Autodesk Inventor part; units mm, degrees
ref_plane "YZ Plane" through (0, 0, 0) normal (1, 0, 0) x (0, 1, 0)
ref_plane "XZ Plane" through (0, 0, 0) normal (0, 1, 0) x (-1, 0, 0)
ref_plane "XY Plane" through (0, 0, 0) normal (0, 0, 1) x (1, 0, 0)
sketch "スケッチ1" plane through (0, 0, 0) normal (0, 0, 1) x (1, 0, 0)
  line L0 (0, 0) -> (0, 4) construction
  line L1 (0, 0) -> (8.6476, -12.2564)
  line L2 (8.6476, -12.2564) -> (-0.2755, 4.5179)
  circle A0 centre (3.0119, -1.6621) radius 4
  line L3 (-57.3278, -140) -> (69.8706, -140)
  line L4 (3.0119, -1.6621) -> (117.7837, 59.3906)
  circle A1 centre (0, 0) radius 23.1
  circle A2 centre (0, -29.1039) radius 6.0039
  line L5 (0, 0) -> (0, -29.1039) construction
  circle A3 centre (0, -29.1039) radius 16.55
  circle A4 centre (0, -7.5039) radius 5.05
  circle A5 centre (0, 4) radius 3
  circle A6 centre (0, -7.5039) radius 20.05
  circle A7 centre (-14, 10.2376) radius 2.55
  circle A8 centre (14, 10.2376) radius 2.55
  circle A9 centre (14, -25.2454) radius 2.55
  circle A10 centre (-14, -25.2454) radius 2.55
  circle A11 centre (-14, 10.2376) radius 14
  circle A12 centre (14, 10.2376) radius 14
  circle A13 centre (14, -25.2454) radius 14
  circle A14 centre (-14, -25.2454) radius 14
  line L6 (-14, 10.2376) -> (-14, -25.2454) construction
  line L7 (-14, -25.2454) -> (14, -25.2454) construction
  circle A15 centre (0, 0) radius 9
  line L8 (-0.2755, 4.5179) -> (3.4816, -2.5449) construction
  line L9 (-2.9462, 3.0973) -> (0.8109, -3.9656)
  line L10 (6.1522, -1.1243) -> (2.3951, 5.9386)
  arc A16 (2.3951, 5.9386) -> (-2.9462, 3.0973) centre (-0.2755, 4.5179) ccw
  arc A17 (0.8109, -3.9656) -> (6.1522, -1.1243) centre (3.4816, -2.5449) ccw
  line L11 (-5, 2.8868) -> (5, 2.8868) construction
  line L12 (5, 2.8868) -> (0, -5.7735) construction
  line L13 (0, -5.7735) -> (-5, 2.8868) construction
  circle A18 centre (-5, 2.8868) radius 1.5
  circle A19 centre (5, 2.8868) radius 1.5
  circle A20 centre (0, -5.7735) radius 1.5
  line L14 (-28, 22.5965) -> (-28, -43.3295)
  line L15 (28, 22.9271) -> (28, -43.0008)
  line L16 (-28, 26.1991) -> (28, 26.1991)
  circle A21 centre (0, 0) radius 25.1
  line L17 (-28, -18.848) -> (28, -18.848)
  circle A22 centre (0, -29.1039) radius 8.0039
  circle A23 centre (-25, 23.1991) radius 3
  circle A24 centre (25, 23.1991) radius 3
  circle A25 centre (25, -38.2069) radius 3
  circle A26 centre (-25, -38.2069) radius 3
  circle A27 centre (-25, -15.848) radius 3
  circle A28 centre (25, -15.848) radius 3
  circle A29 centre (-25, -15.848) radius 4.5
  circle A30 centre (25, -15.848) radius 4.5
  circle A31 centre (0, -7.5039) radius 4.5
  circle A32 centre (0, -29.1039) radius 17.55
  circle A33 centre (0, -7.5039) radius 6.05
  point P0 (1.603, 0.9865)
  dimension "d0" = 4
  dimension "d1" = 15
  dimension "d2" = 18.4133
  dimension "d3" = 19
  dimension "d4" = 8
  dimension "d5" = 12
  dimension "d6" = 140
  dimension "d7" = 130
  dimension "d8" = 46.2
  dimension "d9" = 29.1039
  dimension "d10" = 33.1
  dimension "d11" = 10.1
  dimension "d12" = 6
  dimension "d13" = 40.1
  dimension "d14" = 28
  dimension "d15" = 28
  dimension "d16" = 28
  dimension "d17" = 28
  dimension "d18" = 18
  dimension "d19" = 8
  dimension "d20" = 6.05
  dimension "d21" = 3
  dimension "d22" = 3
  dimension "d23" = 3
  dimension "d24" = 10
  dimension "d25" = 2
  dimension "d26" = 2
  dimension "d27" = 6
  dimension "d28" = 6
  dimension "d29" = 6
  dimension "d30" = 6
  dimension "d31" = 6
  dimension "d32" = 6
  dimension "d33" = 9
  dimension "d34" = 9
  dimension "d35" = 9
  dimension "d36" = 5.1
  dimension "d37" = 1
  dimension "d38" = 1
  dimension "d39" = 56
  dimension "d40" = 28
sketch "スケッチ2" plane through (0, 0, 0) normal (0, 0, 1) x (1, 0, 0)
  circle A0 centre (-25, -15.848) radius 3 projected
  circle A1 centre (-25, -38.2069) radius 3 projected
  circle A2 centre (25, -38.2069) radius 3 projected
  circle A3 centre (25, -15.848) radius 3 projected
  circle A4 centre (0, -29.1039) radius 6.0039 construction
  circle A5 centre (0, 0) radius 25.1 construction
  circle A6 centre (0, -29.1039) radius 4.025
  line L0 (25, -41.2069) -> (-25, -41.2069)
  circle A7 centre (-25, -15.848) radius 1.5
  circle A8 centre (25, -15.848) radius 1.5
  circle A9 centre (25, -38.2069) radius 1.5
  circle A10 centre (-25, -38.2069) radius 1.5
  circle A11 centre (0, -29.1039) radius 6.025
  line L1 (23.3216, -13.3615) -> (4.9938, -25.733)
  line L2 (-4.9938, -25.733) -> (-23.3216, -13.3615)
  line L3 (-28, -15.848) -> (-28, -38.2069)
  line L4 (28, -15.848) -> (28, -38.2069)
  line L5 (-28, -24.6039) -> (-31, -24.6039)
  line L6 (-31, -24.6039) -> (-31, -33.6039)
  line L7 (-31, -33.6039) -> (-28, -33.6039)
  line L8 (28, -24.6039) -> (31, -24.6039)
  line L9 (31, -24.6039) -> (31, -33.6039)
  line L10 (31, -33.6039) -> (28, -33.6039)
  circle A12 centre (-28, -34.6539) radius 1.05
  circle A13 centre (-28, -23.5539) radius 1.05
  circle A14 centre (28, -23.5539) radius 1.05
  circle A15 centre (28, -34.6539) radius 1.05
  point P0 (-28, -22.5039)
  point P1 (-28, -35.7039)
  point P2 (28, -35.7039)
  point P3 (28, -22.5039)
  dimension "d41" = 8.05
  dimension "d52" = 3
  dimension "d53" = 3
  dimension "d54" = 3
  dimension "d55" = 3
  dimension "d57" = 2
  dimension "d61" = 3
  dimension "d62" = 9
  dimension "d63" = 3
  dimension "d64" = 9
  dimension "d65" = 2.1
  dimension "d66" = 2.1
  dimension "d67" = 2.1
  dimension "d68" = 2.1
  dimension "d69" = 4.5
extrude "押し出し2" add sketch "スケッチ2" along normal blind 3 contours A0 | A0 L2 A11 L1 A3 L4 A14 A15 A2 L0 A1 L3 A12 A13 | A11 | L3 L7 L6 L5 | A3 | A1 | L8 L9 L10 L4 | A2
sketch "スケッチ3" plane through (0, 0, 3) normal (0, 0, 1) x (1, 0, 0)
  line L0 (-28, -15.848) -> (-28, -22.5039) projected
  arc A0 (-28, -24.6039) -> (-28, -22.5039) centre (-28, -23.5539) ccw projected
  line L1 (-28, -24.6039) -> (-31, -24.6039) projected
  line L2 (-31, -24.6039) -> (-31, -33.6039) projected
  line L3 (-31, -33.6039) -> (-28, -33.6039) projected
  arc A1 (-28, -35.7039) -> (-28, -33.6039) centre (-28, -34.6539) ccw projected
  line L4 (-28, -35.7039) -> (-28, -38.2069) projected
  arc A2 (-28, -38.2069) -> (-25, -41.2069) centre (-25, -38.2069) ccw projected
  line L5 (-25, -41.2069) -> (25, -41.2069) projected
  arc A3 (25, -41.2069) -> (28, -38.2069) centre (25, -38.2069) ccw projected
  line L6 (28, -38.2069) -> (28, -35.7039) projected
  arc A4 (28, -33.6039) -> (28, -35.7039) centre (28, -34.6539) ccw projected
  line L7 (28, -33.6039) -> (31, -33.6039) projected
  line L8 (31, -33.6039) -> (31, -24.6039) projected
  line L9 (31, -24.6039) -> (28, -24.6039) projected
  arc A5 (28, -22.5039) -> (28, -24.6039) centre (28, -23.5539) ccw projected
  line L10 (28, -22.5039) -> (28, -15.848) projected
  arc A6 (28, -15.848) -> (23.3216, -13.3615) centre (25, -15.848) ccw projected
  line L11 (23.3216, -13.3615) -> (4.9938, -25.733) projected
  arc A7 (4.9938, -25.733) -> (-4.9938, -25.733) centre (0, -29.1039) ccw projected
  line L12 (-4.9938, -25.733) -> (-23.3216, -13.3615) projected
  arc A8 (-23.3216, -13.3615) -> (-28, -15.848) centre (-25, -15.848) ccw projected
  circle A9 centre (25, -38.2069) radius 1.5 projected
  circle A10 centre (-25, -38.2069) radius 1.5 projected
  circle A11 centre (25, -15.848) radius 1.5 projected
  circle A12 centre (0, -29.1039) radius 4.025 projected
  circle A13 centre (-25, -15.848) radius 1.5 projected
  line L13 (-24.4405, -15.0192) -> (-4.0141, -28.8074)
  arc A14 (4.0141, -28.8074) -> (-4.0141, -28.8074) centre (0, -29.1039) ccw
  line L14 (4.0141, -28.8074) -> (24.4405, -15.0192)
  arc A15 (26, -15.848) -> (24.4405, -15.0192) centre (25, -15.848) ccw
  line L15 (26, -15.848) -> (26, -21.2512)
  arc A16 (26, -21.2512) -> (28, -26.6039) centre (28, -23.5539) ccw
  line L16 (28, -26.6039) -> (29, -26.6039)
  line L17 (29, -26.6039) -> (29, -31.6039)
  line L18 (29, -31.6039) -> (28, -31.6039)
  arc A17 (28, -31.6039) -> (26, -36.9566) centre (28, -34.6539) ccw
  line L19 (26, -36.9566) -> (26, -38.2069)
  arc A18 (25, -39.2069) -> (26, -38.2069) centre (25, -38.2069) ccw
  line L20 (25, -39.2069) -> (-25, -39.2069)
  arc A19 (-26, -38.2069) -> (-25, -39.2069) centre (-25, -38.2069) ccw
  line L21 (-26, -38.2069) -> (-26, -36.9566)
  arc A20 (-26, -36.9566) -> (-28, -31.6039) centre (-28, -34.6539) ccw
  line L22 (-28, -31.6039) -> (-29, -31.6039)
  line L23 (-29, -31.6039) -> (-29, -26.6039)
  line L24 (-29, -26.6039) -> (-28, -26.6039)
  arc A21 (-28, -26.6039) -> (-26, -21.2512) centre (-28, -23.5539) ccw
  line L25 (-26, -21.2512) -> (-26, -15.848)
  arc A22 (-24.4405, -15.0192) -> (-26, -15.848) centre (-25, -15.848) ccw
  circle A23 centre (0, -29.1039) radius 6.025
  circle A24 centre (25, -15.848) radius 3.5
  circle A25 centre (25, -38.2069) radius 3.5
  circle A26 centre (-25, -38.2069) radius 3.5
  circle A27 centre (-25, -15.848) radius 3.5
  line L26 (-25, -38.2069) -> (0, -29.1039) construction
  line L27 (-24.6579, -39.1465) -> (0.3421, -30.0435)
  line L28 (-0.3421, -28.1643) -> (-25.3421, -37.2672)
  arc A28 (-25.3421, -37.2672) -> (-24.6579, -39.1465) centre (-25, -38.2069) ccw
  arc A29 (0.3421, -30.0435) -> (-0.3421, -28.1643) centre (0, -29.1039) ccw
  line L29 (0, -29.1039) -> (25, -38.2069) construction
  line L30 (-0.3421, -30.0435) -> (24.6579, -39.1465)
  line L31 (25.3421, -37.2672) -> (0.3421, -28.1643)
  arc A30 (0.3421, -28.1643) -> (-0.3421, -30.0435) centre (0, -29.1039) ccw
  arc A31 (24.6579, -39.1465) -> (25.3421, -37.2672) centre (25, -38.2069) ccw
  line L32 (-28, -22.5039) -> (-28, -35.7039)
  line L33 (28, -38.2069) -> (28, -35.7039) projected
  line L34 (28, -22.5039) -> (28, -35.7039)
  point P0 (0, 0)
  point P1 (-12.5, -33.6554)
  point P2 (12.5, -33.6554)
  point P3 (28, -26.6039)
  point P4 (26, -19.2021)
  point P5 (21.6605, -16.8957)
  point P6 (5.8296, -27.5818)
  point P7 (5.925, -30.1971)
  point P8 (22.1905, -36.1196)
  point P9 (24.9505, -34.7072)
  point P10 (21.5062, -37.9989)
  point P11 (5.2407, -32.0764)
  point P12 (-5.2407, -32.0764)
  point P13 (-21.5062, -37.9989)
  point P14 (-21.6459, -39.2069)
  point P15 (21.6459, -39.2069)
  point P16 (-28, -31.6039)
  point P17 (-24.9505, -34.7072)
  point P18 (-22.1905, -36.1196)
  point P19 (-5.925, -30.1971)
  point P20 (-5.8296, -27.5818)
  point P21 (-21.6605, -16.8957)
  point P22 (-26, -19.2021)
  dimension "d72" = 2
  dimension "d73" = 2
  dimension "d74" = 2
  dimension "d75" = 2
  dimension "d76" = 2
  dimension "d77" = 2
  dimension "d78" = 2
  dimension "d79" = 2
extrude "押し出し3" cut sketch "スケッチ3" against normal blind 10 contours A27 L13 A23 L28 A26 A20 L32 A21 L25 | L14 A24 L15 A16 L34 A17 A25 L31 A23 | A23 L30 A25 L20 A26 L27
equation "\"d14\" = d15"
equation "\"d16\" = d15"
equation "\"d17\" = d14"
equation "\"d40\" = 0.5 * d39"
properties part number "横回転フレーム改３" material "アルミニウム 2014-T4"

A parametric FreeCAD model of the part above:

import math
import FreeCAD as App
import Part
import Sketcher
from FreeCAD import Vector
Q = App.Units.Quantity

doc = App.newDocument("Part")
body = doc.addObject("PartDesign::Body", "Body")

# Sketch on XY plane
sketch1 = body.newObject("Sketcher::SketchObject", "Sketch")
sketch1.AttachmentSupport = (doc.getObject("XY_Plane"), [""])
sketch1.MapMode = "FlatFace"
sketch1.addGeometry([
    Part.ArcOfCircle(Part.Circle(Vector(-25, -15.8, 0), Vector(0, 0, 1), 3), math.radians(56), math.radians(180)),  # 0
    Part.LineSegment(Vector(-28, -15.8, 0), Vector(-28, -22.5, 0)),  # 1
    Part.ArcOfCircle(Part.Circle(Vector(-28, -23.6, 0), Vector(0, 0, 1), 1.1), math.radians(-90), math.radians(90)),  # 2
    Part.LineSegment(Vector(-28, -24.6, 0), Vector(-31, -24.6, 0)),  # 3
    Part.LineSegment(Vector(-31, -24.6, 0), Vector(-31, -33.6, 0)),  # 4
    Part.LineSegment(Vector(-31, -33.6, 0), Vector(-28, -33.6, 0)),  # 5
    Part.ArcOfCircle(Part.Circle(Vector(-28, -34.7, 0), Vector(0, 0, 1), 1.1), math.radians(-90), math.radians(90)),  # 6
    Part.LineSegment(Vector(-28, -35.7, 0), Vector(-28, -38.2, 0)),  # 7
    Part.ArcOfCircle(Part.Circle(Vector(-25, -38.2, 0), Vector(0, 0, 1), 3), math.radians(180), math.radians(270)),  # 8
    Part.LineSegment(Vector(-25, -41.2, 0), Vector(25, -41.2, 0)),  # 9
    Part.ArcOfCircle(Part.Circle(Vector(25, -38.2, 0), Vector(0, 0, 1), 3), math.radians(-90), math.radians(0)),  # 10
    Part.LineSegment(Vector(28, -38.2, 0), Vector(28, -35.7, 0)),  # 11
    Part.ArcOfCircle(Part.Circle(Vector(28, -34.7, 0), Vector(0, 0, 1), 1.1), math.radians(90), math.radians(270)),  # 12
    Part.LineSegment(Vector(28, -33.6, 0), Vector(31, -33.6, 0)),  # 13
    Part.LineSegment(Vector(31, -33.6, 0), Vector(31, -24.6, 0)),  # 14
    Part.LineSegment(Vector(31, -24.6, 0), Vector(28, -24.6, 0)),  # 15
    Part.ArcOfCircle(Part.Circle(Vector(28, -23.6, 0), Vector(0, 0, 1), 1.1), math.radians(90), math.radians(270)),  # 16
    Part.LineSegment(Vector(28, -22.5, 0), Vector(28, -15.8, 0)),  # 17
    Part.ArcOfCircle(Part.Circle(Vector(25, -15.8, 0), Vector(0, 0, 1), 3), math.radians(0), math.radians(124)),  # 18
    Part.LineSegment(Vector(23.3, -13.4, 0), Vector(5, -25.7, 0)),  # 19
    Part.ArcOfCircle(Part.Circle(Vector(0, -29.1, 0), Vector(0, 0, 1), 6), math.radians(34), math.radians(146)),  # 20
    Part.LineSegment(Vector(-5, -25.7, 0), Vector(-23.3, -13.4, 0)),  # 21
    Part.Circle(Vector(-25, -15.8, 0), Vector(0, 0, 1), 1.5),  # 22
    Part.Circle(Vector(0, -29.1, 0), Vector(0, 0, 1), 4),  # 23
    Part.Circle(Vector(25, -15.8, 0), Vector(0, 0, 1), 1.5),  # 24
    Part.Circle(Vector(25, -38.2, 0), Vector(0, 0, 1), 1.5),  # 25
    Part.Circle(Vector(-25, -38.2, 0), Vector(0, 0, 1), 1.5),  # 26
], False)
sketch1.addConstraint([
    Sketcher.Constraint("Tangent", 0, 2, 1, 1),
    Sketcher.Constraint("Coincident", 1, 2, 2, 2),
    Sketcher.Constraint("Tangent", 2, 1, 3, 1),
    Sketcher.Constraint("Coincident", 3, 2, 4, 1),
    Sketcher.Constraint("Coincident", 4, 2, 5, 1),
    Sketcher.Constraint("Tangent", 5, 2, 6, 2),
    Sketcher.Constraint("Coincident", 6, 1, 7, 1),
    Sketcher.Constraint("Tangent", 7, 2, 8, 1),
    Sketcher.Constraint("Tangent", 8, 2, 9, 1),
    Sketcher.Constraint("Tangent", 9, 2, 10, 1),
    Sketcher.Constraint("Tangent", 10, 2, 11, 1),
    Sketcher.Constraint("Coincident", 11, 2, 12, 2),
    Sketcher.Constraint("Tangent", 12, 1, 13, 1),
    Sketcher.Constraint("Coincident", 13, 2, 14, 1),
    Sketcher.Constraint("Coincident", 14, 2, 15, 1),
    Sketcher.Constraint("Tangent", 15, 2, 16, 2),
    Sketcher.Constraint("Coincident", 16, 1, 17, 1),
    Sketcher.Constraint("Tangent", 17, 2, 18, 1),
    Sketcher.Constraint("Tangent", 18, 2, 19, 1),
    Sketcher.Constraint("Coincident", 19, 2, 20, 1),
    Sketcher.Constraint("Coincident", 20, 2, 21, 1),
    Sketcher.Constraint("Tangent", 21, 2, 0, 1),
    Sketcher.Constraint("Vertical", 1),
    Sketcher.Constraint("Horizontal", 3),
    Sketcher.Constraint("Vertical", 4),
    Sketcher.Constraint("Horizontal", 5),
    Sketcher.Constraint("Vertical", 7),
    Sketcher.Constraint("Horizontal", 9),
    Sketcher.Constraint("Vertical", 11),
    Sketcher.Constraint("Horizontal", 13),
    Sketcher.Constraint("Vertical", 14),
    Sketcher.Constraint("Horizontal", 15),
    Sketcher.Constraint("Vertical", 17),
    Sketcher.Constraint("Coincident", 22, 3, 0, 3),
    Sketcher.Constraint("Coincident", 23, 3, 20, 3),
    Sketcher.Constraint("Coincident", 24, 3, 18, 3),
    Sketcher.Constraint("Coincident", 25, 3, 10, 3),
    Sketcher.Constraint("Coincident", 26, 3, 8, 3),
    Sketcher.Constraint("Equal", 2, 6),
    Sketcher.Constraint("Equal", 0, 8),
    Sketcher.Constraint("Equal", 8, 10),
    Sketcher.Constraint("Equal", 6, 12),
    Sketcher.Constraint("Equal", 12, 16),
    Sketcher.Constraint("Equal", 10, 18),
    Sketcher.Constraint("Equal", 22, 24),
    Sketcher.Constraint("Equal", 24, 25),
    Sketcher.Constraint("Equal", 25, 26),
    Sketcher.Constraint("Symmetric", 6, 3, 12, 3, -2),
    Sketcher.Constraint("Symmetric", 2, 3, 16, 3, -2),
    Sketcher.Constraint("Symmetric", 0, 3, 18, 3, -2),
    Sketcher.Constraint("Symmetric", 19, 2, 20, 2, -2),
    Sketcher.Constraint("Vertical", 2, 3, 6, 3),
    Sketcher.Constraint("Vertical", 0, 3, 8, 3),
    Sketcher.Constraint("Vertical", 10, 3, 18, 3),
    Sketcher.Constraint("Vertical", 6, 3, 0, 2),
    Sketcher.Constraint("Equal", 5, 13),
    Sketcher.Constraint("Diameter", 22, 3.0),
    Sketcher.Constraint("Radius", 0, 3.0),
    Sketcher.Constraint("Diameter", 23, 8.05),
    Sketcher.Constraint("DistanceX", 3, 2, 3, 1, 3.0),
    Sketcher.Constraint("DistanceY", 4, 2, 4, 1, 9.0),
    Sketcher.Constraint("Radius", 2, 1.05),
    Sketcher.Constraint("DistanceX", 9, 1, 9, 2, 50.0),
    Sketcher.Constraint("Radius", 20, 6.025),
    Sketcher.Constraint("Angle", 19, Q("-145.9801 deg")),
    Sketcher.Constraint("DistanceY", 1, 2, 1, 1, 6.656),
    Sketcher.Constraint("DistanceY", 7, 2, 7, 1, 2.503),
    Sketcher.Constraint("DistanceY", 20, 3, 2, 3, 5.55),
    Sketcher.Constraint("DistanceY", 0, 3, -1, 1, 15.848),
])
pad1 = body.newObject("PartDesign::Pad", "Pad")
pad1.Profile = sketch1
pad1.Length = 3

# Sketch on XY plane
sketch2 = body.newObject("Sketcher::SketchObject", "Sketch001")
sketch2.AttachmentSupport = (doc.getObject("XY_Plane"), [""])
sketch2.MapMode = "FlatFace"
sketch2.AttachmentOffset = App.Placement(Vector(0, 0, 3), App.Rotation())
sketch2.addGeometry([
    Part.ArcOfCircle(Part.Circle(Vector(-25, -15.8, 0), Vector(0, 0, 1), 3.5), math.radians(-107), math.radians(-17)),  # 0
    Part.LineSegment(Vector(-26, -19.2, 0), Vector(-26, -21.3, 0)),  # 1
    Part.ArcOfCircle(Part.Circle(Vector(-28, -23.6, 0), Vector(0, 0, 1), 3.1), math.radians(-90), math.radians(49)),  # 2
    Part.LineSegment(Vector(-28, -26.6, 0), Vector(-28, -31.6, 0)),  # 3
    Part.ArcOfCircle(Part.Circle(Vector(-28, -34.7, 0), Vector(0, 0, 1), 3), math.radians(-1), math.radians(90)),  # 4
    Part.ArcOfCircle(Part.Circle(Vector(-25, -38.2, 0), Vector(0, 0, 1), 3.5), math.radians(37), math.radians(89)),  # 5
    Part.LineSegment(Vector(-22.2, -36.1, 0), Vector(-5.9, -30.2, 0)),  # 6
    Part.ArcOfCircle(Part.Circle(Vector(0, -29.1, 0), Vector(0, 0, 1), 6), math.radians(165), math.radians(190)),  # 7
    Part.LineSegment(Vector(-5.8, -27.6, 0), Vector(-21.7, -16.9, 0)),  # 8
    Part.LineSegment(Vector(21.7, -16.9, 0), Vector(5.8, -27.6, 0)),  # 9
    Part.ArcOfCircle(Part.Circle(Vector(0, -29.1, 0), Vector(0, 0, 1), 6), math.radians(-10), math.radians(15)),  # 10
    Part.LineSegment(Vector(5.9, -30.2, 0), Vector(22.2, -36.1, 0)),  # 11
    Part.ArcOfCircle(Part.Circle(Vector(25, -38.2, 0), Vector(0, 0, 1), 3.5), math.radians(91), math.radians(143)),  # 12
    Part.ArcOfCircle(Part.Circle(Vector(28, -34.7, 0), Vector(0, 0, 1), 3.1), math.radians(90), math.radians(181)),  # 13
    Part.LineSegment(Vector(28, -31.6, 0), Vector(28, -26.6, 0)),  # 14
    Part.ArcOfCircle(Part.Circle(Vector(28, -23.6, 0), Vector(0, 0, 1), 3), math.radians(131), math.radians(270)),  # 15
    Part.LineSegment(Vector(26, -21.3, 0), Vector(26, -19.2, 0)),  # 16
    Part.ArcOfCircle(Part.Circle(Vector(25, -15.8, 0), Vector(0, 0, 1), 3.5), math.radians(-163), math.radians(-73)),  # 17
    Part.ArcOfCircle(Part.Circle(Vector(0, -29.1, 0), Vector(0, 0, 1), 6), math.radians(-150), math.radians(-30)),  # 18
    Part.LineSegment(Vector(-5.2, -32.1, 0), Vector(-21.5, -38, 0)),  # 19
    Part.ArcOfCircle(Part.Circle(Vector(-25, -38.2, 0), Vector(0, 0, 1), 3.5), math.radians(-17), math.radians(3)),  # 20
    Part.LineSegment(Vector(-21.6, -39.2, 0), Vector(21.6, -39.2, 0)),  # 21
    Part.ArcOfCircle(Part.Circle(Vector(25, -38.2, 0), Vector(0, 0, 1), 3.5), math.radians(177), math.radians(197)),  # 22
    Part.LineSegment(Vector(21.5, -38, 0), Vector(5.2, -32.1, 0)),  # 23
], False)
sketch2.addConstraint([
    Sketcher.Constraint("Coincident", 0, 1, 1, 1),
    Sketcher.Constraint("Coincident", 1, 2, 2, 2),
    Sketcher.Constraint("Coincident", 2, 1, 3, 1),
    Sketcher.Constraint("Coincident", 3, 2, 4, 2),
    Sketcher.Constraint("Coincident", 4, 1, 5, 2),
    Sketcher.Constraint("Coincident", 5, 1, 6, 1),
    Sketcher.Constraint("Coincident", 6, 2, 7, 2),
    Sketcher.Constraint("Coincident", 7, 1, 8, 1),
    Sketcher.Constraint("Coincident", 8, 2, 0, 2),
    Sketcher.Constraint("Coincident", 9, 2, 10, 2),
    Sketcher.Constraint("Coincident", 10, 1, 11, 1),
    Sketcher.Constraint("Coincident", 11, 2, 12, 2),
    Sketcher.Constraint("Coincident", 12, 1, 13, 2),
    Sketcher.Constraint("Coincident", 13, 1, 14, 1),
    Sketcher.Constraint("Coincident", 14, 2, 15, 2),
    Sketcher.Constraint("Coincident", 15, 1, 16, 1),
    Sketcher.Constraint("Coincident", 16, 2, 17, 2),
    Sketcher.Constraint("Coincident", 17, 1, 9, 1),
    Sketcher.Constraint("Coincident", 18, 1, 19, 1),
    Sketcher.Constraint("Coincident", 19, 2, 20, 2),
    Sketcher.Constraint("Coincident", 20, 1, 21, 1),
    Sketcher.Constraint("Coincident", 21, 2, 22, 2),
    Sketcher.Constraint("Coincident", 22, 1, 23, 1),
    Sketcher.Constraint("Coincident", 23, 2, 18, 2),
    Sketcher.Constraint("Vertical", 1),
    Sketcher.Constraint("Vertical", 3),
    Sketcher.Constraint("Vertical", 14),
    Sketcher.Constraint("Vertical", 16),
    Sketcher.Constraint("Horizontal", 21),
    Sketcher.Constraint("Coincident", 10, 3, 7, 3),
    Sketcher.Constraint("Coincident", 18, 3, 7, 3),
    Sketcher.Constraint("Coincident", 20, 3, 5, 3),
    Sketcher.Constraint("Coincident", 22, 3, 12, 3),
    Sketcher.Constraint("Equal", 2, 4),
    Sketcher.Constraint("Equal", 0, 5),
    Sketcher.Constraint("Equal", 7, 10),
    Sketcher.Constraint("Equal", 5, 12),
    Sketcher.Constraint("Equal", 4, 13),
    Sketcher.Constraint("Equal", 13, 15),
    Sketcher.Constraint("Equal", 12, 17),
    Sketcher.Constraint("Equal", 10, 18),
    Sketcher.Constraint("Equal", 17, 20),
    Sketcher.Constraint("Equal", 20, 22),
    Sketcher.Constraint("Symmetric", 5, 3, 12, 3, -2),
    Sketcher.Constraint("Symmetric", 4, 3, 13, 3, -2),
    Sketcher.Constraint("Symmetric", 2, 3, 15, 3, -2),
    Sketcher.Constraint("Symmetric", 0, 3, 17, 3, -2),
    Sketcher.Constraint("Symmetric", 7, 1, 9, 2, -2),
    Sketcher.Constraint("Parallel", 6, 19),
    Sketcher.Constraint("Parallel", 11, 23),
    Sketcher.Constraint("Horizontal", 6, 2, 10, 1),
    Sketcher.Constraint("Horizontal", 5, 1, 11, 2),
    Sketcher.Constraint("Horizontal", 1, 2, 15, 1),
    Sketcher.Constraint("Horizontal", 8, 2, 17, 1),
    Sketcher.Constraint("Horizontal", 19, 2, 22, 1),
    Sketcher.Constraint("Vertical", 2, 3, 4, 3),
    Sketcher.Constraint("Vertical", 0, 3, 5, 3),
    Sketcher.Constraint("Vertical", 4, 3, 2, 1),
    Sketcher.Constraint("Vertical", 15, 3, 13, 1),
    Sketcher.Constraint("Equal", 11, 19),
    Sketcher.Constraint("DistanceX", 2, 3, 0, 1, 2.0),
    Sketcher.Constraint("Radius", 0, 3.5),
    Sketcher.Constraint("DistanceY", 3, 2, 3, 1, 5.0),
    Sketcher.Constraint("Radius", 2, 3.05),
    Sketcher.Constraint("DistanceX", 0, 3, -1, 1, 25.0),
    Sketcher.Constraint("DistanceX", 2, 3, -1, 1, 28.0),
    Sketcher.Constraint("Radius", 7, 6.025),
    Sketcher.Constraint("DistanceY", 20, 1, 5, 3, 1.0),
    Sketcher.Constraint("Distance", 8, 19.1),
    Sketcher.Constraint("Angle", 8, Q("145.98 deg")),
    Sketcher.Constraint("DistanceY", 1, 2, 1, 1, 2.049),
    Sketcher.Constraint("DistanceY", 7, 3, 2, 3, 5.55),
    Sketcher.Constraint("DistanceX", 4, 1, 5, 1, 2.76),
    Sketcher.Constraint("DistanceX", 6, 2, 10, 1, 11.85),
    Sketcher.Constraint("DistanceY", 0, 3, -1, 1, 15.848),
    Sketcher.Constraint("DistanceY", 5, 3, -1, 1, 38.207),
])
pocket1 = body.newObject("PartDesign::Pocket", "Pocket")
pocket1.Profile = sketch2
pocket1.Length = 10

doc.recompute()
